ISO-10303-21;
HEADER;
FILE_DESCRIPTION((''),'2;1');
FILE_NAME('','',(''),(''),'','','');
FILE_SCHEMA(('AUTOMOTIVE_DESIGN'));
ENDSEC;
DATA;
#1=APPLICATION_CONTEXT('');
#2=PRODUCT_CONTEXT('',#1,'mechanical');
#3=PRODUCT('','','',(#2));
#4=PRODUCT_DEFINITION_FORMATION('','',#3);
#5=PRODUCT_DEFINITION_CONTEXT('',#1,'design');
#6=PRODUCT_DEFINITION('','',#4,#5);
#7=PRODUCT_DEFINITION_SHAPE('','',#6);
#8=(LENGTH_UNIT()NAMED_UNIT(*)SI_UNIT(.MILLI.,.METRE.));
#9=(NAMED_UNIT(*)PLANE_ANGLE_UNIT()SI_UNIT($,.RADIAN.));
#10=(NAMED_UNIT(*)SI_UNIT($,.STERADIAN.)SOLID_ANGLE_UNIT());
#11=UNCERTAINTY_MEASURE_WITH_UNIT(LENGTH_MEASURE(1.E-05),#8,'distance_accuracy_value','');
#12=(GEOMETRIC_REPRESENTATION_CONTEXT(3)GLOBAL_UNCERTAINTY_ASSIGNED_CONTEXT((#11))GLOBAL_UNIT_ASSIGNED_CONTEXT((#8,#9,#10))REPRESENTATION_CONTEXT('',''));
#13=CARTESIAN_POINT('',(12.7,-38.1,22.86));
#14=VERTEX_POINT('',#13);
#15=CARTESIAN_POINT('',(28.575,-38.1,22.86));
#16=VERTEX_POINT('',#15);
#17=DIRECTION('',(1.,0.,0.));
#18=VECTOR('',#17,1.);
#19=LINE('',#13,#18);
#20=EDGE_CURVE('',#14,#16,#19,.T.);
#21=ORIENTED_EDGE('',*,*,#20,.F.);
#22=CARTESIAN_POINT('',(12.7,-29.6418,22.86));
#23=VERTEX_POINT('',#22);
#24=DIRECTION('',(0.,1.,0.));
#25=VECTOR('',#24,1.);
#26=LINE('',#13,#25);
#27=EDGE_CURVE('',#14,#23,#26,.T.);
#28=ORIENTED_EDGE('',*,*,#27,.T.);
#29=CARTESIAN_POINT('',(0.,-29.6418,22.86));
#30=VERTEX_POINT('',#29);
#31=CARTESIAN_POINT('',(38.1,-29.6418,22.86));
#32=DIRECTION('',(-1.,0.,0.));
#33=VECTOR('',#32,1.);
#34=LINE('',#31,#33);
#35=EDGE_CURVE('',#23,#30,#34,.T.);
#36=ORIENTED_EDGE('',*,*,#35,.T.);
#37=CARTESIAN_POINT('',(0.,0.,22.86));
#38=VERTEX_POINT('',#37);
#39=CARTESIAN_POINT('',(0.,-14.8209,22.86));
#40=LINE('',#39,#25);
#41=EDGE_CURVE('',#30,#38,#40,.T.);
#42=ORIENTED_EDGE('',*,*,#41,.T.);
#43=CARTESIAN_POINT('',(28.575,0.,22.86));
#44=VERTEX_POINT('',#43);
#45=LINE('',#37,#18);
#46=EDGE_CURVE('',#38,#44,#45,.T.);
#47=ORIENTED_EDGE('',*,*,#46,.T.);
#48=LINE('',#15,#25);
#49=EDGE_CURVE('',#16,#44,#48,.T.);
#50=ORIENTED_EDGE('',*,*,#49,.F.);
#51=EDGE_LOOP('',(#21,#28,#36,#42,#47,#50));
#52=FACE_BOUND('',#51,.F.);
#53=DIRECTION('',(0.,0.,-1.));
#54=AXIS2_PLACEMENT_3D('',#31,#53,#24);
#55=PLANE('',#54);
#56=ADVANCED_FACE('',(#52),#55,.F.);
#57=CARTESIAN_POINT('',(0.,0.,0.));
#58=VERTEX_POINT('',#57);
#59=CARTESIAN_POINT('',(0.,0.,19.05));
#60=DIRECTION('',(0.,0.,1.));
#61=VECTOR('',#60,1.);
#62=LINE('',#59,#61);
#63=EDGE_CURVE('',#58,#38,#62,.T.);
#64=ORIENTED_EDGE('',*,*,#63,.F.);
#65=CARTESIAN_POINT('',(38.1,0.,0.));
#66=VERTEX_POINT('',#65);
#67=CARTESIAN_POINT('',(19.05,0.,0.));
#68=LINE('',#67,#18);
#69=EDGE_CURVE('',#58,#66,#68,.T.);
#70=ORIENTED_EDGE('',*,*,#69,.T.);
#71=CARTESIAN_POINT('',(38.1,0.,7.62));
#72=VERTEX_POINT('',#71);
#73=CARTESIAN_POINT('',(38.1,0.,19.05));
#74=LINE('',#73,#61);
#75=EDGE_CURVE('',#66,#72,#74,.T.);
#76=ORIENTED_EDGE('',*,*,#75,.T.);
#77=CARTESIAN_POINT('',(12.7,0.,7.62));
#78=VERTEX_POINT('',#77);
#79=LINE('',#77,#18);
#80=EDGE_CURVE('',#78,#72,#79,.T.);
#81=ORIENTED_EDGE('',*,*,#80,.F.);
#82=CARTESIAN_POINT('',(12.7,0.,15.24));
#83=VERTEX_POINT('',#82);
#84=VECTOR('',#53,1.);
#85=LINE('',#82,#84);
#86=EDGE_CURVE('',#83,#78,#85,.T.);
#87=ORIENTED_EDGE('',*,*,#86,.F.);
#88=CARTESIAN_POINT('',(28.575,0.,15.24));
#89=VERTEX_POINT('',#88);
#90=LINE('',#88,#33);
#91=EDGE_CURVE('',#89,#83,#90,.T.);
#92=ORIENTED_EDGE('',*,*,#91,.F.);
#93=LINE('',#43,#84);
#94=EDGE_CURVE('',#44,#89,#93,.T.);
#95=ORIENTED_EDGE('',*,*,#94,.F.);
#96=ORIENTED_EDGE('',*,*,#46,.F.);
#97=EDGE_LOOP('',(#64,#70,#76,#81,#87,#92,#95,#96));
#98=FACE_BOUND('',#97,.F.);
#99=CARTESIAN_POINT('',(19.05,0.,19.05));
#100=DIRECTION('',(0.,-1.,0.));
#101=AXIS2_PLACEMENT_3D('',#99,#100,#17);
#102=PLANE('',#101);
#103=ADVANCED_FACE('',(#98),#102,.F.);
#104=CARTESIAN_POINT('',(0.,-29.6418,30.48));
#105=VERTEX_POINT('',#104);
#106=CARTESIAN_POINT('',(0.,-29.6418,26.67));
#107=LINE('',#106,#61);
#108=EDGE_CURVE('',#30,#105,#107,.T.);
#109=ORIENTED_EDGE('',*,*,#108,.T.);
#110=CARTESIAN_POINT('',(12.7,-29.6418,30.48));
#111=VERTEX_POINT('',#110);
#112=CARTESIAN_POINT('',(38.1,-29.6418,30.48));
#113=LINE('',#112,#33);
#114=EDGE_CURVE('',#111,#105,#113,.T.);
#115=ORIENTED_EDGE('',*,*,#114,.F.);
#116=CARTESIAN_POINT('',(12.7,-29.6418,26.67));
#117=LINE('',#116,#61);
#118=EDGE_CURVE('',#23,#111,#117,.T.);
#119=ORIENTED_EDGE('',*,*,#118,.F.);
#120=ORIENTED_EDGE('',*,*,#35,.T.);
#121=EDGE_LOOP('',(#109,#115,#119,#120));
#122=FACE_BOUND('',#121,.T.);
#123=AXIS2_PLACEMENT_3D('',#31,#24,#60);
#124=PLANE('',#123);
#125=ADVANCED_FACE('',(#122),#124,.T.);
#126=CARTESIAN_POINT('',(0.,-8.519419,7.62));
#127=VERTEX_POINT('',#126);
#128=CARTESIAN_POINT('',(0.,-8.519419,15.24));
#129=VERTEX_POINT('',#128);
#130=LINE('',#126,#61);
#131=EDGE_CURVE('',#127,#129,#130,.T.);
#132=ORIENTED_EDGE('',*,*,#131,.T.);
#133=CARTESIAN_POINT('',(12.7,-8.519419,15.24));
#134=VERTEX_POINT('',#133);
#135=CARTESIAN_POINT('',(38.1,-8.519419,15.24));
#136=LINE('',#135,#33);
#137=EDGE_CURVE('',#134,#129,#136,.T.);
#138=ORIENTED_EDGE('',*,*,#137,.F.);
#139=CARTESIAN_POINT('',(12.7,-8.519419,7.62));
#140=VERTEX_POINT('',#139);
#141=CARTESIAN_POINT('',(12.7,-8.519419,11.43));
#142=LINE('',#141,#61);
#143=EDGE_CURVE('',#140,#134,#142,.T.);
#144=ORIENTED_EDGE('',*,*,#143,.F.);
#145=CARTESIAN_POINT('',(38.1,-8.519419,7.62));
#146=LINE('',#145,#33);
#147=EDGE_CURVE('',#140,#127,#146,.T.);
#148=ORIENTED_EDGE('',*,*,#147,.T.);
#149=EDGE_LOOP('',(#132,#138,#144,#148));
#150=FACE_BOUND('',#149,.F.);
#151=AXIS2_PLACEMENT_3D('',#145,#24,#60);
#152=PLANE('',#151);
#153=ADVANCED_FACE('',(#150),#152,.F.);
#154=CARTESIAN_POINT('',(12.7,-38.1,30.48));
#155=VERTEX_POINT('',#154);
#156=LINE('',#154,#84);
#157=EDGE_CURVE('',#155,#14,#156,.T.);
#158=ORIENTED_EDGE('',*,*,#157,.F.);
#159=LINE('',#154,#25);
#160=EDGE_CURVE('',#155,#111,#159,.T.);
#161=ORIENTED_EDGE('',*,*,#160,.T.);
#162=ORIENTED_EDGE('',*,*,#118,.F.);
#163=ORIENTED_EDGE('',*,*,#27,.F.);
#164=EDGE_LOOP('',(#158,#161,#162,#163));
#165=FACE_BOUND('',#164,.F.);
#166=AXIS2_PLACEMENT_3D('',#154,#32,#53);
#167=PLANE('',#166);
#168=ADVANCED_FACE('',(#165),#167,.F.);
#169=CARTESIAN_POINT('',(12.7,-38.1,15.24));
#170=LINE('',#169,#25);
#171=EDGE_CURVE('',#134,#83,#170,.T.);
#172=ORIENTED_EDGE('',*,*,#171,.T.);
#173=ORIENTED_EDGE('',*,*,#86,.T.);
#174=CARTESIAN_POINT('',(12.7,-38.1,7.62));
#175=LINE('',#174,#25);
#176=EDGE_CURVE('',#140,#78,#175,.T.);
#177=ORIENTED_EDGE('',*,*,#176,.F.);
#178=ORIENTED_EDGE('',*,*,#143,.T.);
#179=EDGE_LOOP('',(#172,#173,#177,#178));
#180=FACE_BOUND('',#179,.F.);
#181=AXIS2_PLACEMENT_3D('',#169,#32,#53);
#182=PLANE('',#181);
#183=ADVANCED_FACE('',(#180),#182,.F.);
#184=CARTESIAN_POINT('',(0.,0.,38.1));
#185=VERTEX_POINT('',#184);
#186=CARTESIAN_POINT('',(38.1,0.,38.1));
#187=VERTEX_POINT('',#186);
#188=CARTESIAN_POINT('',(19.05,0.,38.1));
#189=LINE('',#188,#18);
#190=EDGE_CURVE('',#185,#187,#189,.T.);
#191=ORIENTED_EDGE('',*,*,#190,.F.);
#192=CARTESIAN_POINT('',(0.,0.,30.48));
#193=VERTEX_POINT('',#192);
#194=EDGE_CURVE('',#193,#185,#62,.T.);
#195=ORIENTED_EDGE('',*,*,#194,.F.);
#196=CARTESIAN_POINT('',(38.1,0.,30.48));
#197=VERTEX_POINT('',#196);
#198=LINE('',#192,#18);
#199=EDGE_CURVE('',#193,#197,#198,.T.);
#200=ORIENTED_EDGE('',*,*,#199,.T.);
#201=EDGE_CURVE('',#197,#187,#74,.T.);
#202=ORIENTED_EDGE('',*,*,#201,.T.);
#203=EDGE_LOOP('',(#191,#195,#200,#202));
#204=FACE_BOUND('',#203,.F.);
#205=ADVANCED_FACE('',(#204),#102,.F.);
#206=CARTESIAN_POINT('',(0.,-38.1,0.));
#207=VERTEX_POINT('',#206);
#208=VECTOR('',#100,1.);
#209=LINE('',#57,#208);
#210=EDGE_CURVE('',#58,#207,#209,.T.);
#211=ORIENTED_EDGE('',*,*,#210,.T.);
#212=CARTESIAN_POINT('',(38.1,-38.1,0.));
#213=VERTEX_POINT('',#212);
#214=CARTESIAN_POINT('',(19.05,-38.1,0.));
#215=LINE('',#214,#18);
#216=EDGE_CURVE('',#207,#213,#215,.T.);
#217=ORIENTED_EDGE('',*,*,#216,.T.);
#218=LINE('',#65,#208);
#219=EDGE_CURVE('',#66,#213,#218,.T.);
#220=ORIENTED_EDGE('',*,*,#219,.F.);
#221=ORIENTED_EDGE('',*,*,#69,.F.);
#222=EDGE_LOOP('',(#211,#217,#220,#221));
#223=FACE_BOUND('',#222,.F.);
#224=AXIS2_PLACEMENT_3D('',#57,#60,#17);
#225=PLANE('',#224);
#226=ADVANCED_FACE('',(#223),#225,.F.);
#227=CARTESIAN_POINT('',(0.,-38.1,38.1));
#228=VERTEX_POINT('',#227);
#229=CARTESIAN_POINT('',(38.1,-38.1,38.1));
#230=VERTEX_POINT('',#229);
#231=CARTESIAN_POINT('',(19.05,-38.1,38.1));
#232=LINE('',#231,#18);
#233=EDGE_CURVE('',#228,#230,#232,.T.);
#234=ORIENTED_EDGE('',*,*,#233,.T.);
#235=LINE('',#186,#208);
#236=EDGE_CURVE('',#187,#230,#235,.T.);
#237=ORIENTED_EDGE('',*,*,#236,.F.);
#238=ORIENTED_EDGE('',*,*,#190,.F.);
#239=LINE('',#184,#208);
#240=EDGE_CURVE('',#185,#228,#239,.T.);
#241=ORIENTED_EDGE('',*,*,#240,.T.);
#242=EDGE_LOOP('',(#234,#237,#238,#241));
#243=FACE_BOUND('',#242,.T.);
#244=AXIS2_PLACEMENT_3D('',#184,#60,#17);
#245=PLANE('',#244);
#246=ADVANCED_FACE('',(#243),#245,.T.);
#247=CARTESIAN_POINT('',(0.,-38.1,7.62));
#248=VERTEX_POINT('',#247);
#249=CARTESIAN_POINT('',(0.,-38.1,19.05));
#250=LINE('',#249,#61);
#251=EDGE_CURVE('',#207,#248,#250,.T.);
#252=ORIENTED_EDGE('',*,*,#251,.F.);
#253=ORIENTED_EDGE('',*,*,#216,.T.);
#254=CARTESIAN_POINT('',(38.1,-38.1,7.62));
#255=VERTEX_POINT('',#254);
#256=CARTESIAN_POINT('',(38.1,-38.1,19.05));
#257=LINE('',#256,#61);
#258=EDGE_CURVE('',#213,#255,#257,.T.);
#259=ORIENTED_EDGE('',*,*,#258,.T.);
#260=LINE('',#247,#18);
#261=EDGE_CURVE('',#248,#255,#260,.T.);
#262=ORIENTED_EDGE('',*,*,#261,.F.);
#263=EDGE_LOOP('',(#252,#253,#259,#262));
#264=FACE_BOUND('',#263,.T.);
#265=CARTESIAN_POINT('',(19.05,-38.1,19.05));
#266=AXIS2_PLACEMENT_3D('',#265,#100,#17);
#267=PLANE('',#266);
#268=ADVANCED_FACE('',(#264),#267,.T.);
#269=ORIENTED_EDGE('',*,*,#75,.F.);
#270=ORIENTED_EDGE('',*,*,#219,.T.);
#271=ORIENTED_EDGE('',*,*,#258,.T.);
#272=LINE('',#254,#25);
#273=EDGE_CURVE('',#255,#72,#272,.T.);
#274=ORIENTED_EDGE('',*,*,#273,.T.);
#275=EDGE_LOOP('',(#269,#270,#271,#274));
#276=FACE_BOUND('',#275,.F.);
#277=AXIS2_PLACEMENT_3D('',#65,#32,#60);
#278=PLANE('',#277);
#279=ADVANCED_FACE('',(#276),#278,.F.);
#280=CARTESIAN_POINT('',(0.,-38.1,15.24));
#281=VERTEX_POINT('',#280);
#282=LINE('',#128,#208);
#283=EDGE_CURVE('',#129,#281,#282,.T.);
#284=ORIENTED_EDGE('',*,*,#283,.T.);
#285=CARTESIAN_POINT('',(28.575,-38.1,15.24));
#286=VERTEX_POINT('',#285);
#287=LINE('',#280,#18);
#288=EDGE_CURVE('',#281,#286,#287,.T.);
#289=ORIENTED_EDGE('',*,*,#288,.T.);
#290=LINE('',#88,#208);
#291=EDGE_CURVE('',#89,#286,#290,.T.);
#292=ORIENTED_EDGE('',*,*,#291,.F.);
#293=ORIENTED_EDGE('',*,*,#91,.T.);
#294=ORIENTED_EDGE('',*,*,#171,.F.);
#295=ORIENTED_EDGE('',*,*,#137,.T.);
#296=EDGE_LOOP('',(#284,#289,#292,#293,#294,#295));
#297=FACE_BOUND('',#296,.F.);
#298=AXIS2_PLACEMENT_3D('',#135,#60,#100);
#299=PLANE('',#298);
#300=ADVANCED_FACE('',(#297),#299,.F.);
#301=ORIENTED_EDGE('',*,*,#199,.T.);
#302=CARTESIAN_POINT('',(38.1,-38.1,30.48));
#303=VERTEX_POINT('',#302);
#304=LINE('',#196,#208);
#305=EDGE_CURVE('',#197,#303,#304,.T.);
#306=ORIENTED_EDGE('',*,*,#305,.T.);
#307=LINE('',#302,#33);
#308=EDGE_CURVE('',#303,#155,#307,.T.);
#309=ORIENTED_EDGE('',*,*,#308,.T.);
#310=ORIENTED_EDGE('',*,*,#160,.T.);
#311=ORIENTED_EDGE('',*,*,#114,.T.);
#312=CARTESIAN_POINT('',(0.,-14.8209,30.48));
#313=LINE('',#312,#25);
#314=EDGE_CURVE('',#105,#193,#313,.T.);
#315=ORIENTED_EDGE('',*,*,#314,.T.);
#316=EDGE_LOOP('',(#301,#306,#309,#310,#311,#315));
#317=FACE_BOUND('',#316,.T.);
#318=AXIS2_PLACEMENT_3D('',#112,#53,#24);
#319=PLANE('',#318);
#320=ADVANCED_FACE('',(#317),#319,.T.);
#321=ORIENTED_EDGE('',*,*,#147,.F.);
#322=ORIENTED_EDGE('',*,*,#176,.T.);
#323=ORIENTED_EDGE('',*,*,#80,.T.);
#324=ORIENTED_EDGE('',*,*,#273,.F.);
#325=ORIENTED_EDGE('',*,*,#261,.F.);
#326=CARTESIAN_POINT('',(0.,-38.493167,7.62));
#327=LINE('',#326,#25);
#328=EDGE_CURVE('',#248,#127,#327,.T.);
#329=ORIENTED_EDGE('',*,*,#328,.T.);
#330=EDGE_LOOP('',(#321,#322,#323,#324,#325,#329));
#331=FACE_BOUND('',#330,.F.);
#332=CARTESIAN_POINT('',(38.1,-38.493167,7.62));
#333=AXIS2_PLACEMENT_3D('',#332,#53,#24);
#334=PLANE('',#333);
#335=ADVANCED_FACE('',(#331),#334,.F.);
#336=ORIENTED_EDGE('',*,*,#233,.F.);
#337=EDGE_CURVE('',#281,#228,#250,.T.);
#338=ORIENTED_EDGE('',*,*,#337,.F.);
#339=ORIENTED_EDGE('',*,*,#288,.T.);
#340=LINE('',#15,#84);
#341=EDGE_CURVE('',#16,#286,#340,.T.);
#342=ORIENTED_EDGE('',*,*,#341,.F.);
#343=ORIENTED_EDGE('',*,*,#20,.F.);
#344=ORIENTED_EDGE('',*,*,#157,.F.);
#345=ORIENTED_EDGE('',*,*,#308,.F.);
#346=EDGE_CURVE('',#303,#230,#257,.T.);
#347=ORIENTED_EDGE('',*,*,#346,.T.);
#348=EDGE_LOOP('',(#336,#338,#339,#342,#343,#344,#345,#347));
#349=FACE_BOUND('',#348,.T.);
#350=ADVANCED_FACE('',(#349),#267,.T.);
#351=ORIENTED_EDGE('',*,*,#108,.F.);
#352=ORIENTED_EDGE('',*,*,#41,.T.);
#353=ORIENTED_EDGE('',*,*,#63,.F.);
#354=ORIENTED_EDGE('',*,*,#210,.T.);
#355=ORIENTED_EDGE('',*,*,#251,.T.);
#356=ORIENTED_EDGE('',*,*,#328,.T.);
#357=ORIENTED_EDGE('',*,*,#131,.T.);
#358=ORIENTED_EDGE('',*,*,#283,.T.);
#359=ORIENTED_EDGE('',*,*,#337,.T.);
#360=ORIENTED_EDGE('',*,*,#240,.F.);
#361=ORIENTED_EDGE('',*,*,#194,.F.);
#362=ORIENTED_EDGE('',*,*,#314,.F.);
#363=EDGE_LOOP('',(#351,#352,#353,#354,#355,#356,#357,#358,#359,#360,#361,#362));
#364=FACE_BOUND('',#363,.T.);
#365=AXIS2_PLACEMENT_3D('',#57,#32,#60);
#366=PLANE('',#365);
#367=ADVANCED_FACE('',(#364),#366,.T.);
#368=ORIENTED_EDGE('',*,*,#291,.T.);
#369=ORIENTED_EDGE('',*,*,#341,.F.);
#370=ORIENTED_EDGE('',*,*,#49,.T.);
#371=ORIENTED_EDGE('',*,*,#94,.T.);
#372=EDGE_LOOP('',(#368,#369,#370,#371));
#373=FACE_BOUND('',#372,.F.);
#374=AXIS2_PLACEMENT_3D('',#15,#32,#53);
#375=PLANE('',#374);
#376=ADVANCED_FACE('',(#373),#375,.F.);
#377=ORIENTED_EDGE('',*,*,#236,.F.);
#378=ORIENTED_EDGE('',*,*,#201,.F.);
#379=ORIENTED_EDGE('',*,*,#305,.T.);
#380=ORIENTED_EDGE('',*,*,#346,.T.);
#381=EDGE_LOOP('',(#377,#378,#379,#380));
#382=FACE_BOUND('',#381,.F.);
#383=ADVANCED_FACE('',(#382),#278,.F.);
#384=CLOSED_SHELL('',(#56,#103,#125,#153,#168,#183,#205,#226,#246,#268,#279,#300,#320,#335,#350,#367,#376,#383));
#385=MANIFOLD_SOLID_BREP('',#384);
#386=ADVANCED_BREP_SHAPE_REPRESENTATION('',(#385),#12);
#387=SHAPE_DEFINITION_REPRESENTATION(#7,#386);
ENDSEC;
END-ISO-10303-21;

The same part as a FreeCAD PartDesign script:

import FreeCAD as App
import Part
import Sketcher

V = App.Vector
Q = App.Units.Quantity

doc = App.newDocument("Part")
body = doc.addObject("PartDesign::Body", "Body")

sketch1 = body.newObject("Sketcher::SketchObject", "Sketch")
sketch1.AttachmentSupport = (doc.getObject("XZ_Plane"), [""])
sketch1.MapMode = "FlatFace"
sketch1.addGeometry(Part.LineSegment(V(0, 38.1, 0), V(0, 0, 0)), False)
sketch1.addGeometry(Part.LineSegment(V(0, 0, 0), V(38.1, 0, 0)), False)
sketch1.addGeometry(Part.LineSegment(V(38.1, 0, 0), V(38.1, 38.1, 0)), False)
sketch1.addGeometry(Part.LineSegment(V(38.1, 38.1, 0), V(0, 38.1, 0)), False)
sketch1.addConstraint(Sketcher.Constraint("Coincident", 0, 2, 1, 1))
sketch1.addConstraint(Sketcher.Constraint("Coincident", 1, 2, 2, 1))
sketch1.addConstraint(Sketcher.Constraint("Coincident", 2, 2, 3, 1))
sketch1.addConstraint(Sketcher.Constraint("Coincident", 3, 2, 0, 1))
sketch1.addConstraint(Sketcher.Constraint("Vertical", 0))
sketch1.addConstraint(Sketcher.Constraint("Horizontal", 1))
sketch1.addConstraint(Sketcher.Constraint("Vertical", 2))
sketch1.addConstraint(Sketcher.Constraint("Horizontal", 3))
sketch1.addConstraint(Sketcher.Constraint("Coincident", 0, 2, -1, 1))
sketch1.addConstraint(Sketcher.Constraint("Equal", 3, 0))
sketch1.addConstraint(Sketcher.Constraint("DistanceX", 1, 1, 1, 2, Q("1.5 in")))
pad1 = body.newObject("PartDesign::Pad", "Pad")
pad1.Profile = sketch1
pad1.Length = Q("1.5 in")

sketch2 = body.newObject("Sketcher::SketchObject", "Sketch001")
sketch2.AttachmentSupport = (doc.getObject("YZ_Plane"), [""])
sketch2.MapMode = "FlatFace"
sketch2.AttachmentOffset = App.Placement(V(0, 0, 1.5 * 25.4), App.Rotation())
sketch2.addGeometry(Part.LineSegment(V(-29.6418, 30.48, 0), V(-29.6418, 22.86, 0)), False)
sketch2.addGeometry(Part.LineSegment(V(-29.6418, 22.86, 0), V(0, 22.86, 0)), False)
sketch2.addGeometry(Part.LineSegment(V(0, 22.86, 0), V(0, 30.48, 0)), False)
sketch2.addGeometry(Part.LineSegment(V(0, 30.48, 0), V(-29.6418, 30.48, 0)), False)
sketch2.addGeometry(Part.LineSegment(V(-8.519419, 15.24, 0), V(-38.160126, 15.24, 0)), False)
sketch2.addGeometry(Part.LineSegment(V(-38.160126, 15.24, 0), V(-38.493167, 7.62, 0)), False)
sketch2.addGeometry(Part.LineSegment(V(-38.493167, 7.62, 0), V(-8.519419, 7.62, 0)), False)
sketch2.addGeometry(Part.LineSegment(V(-8.519419, 7.62, 0), V(-8.519419, 15.24, 0)), False)
sketch2.addConstraint(Sketcher.Constraint("Coincident", 0, 2, 1, 1))
sketch2.addConstraint(Sketcher.Constraint("Coincident", 1, 2, 2, 1))
sketch2.addConstraint(Sketcher.Constraint("Coincident", 2, 2, 3, 1))
sketch2.addConstraint(Sketcher.Constraint("Coincident", 3, 2, 0, 1))
sketch2.addConstraint(Sketcher.Constraint("Coincident", 4, 2, 5, 1))
sketch2.addConstraint(Sketcher.Constraint("Coincident", 5, 2, 6, 1))
sketch2.addConstraint(Sketcher.Constraint("Coincident", 6, 2, 7, 1))
sketch2.addConstraint(Sketcher.Constraint("Coincident", 7, 2, 4, 1))
sketch2.addConstraint(Sketcher.Constraint("Vertical", 0))
sketch2.addConstraint(Sketcher.Constraint("Horizontal", 1))
sketch2.addConstraint(Sketcher.Constraint("Vertical", 2))
sketch2.addConstraint(Sketcher.Constraint("Horizontal", 3))
sketch2.addConstraint(Sketcher.Constraint("Horizontal", 4))
sketch2.addConstraint(Sketcher.Constraint("Horizontal", 6))
sketch2.addConstraint(Sketcher.Constraint("Vertical", 7))
sketch2.addConstraint(Sketcher.Constraint("PointOnObject", 1, 2, -2))
sketch2.addConstraint(Sketcher.Constraint("Equal", 2, 7))
sketch2.addConstraint(Sketcher.Constraint("DistanceY", 0, 2, 0, 1, Q("0.3 in")))
sketch2.addConstraint(Sketcher.Constraint("DistanceY", -1, 1, 0, 2, Q("0.9 in")))
sketch2.addConstraint(Sketcher.Constraint("DistanceY", -1, 1, 4, 2, Q("0.6 in")))
sketch2.addConstraint(Sketcher.Constraint("DistanceX", 1, 1, 1, 2, Q("1.167 in")))
sketch2.addConstraint(Sketcher.Constraint("DistanceX", 6, 1, 6, 2, Q("29.973748 mm")))
sketch2.addConstraint(Sketcher.Constraint("DistanceX", 4, 2, 4, 1, Q("29.640707 mm")))
sketch2.addConstraint(Sketcher.Constraint("DistanceX", 6, 2, -1, 1, Q("8.519419 mm")))
pocket1 = body.newObject("PartDesign::Pocket", "Pocket")
pocket1.Profile = sketch2
pocket1.Length = Q("1.5 in")

sketch3 = body.newObject("Sketcher::SketchObject", "Sketch002")
sketch3.AttachmentSupport = (doc.getObject("XZ_Plane"), [""])
sketch3.MapMode = "FlatFace"
sketch3.AttachmentOffset = App.Placement(V(0, 0, 1.5 * 25.4), App.Rotation())
sketch3.addGeometry(Part.LineSegment(V(38.1, 7.62, 0), V(38.1, 30.48, 0)), False)
sketch3.addGeometry(Part.LineSegment(V(38.1, 30.48, 0), V(12.7, 30.48, 0)), False)
sketch3.addGeometry(Part.LineSegment(V(12.7, 30.48, 0), V(12.7, 22.86, 0)), False)
sketch3.addGeometry(Part.LineSegment(V(12.7, 22.86, 0), V(28.575, 22.86, 0)), False)
sketch3.addGeometry(Part.LineSegment(V(28.575, 22.86, 0), V(28.575, 15.24, 0)), False)
sketch3.addGeometry(Part.LineSegment(V(28.575, 15.24, 0), V(12.7, 15.24, 0)), False)
sketch3.addGeometry(Part.LineSegment(V(12.7, 15.24, 0), V(12.7, 7.62, 0)), False)
sketch3.addGeometry(Part.LineSegment(V(12.7, 7.62, 0), V(38.1, 7.62, 0)), False)
sketch3.addConstraint(Sketcher.Constraint("Coincident", 0, 2, 1, 1))
sketch3.addConstraint(Sketcher.Constraint("Coincident", 1, 2, 2, 1))
sketch3.addConstraint(Sketcher.Constraint("Coincident", 2, 2, 3, 1))
sketch3.addConstraint(Sketcher.Constraint("Coincident", 3, 2, 4, 1))
sketch3.addConstraint(Sketcher.Constraint("Coincident", 4, 2, 5, 1))
sketch3.addConstraint(Sketcher.Constraint("Coincident", 5, 2, 6, 1))
sketch3.addConstraint(Sketcher.Constraint("Coincident", 6, 2, 7, 1))
sketch3.addConstraint(Sketcher.Constraint("Coincident", 7, 2, 0, 1))
sketch3.addConstraint(Sketcher.Constraint("Vertical", 0))
sketch3.addConstraint(Sketcher.Constraint("Horizontal", 1))
sketch3.addConstraint(Sketcher.Constraint("Vertical", 2))
sketch3.addConstraint(Sketcher.Constraint("Horizontal", 3))
sketch3.addConstraint(Sketcher.Constraint("Vertical", 4))
sketch3.addConstraint(Sketcher.Constraint("Horizontal", 5))
sketch3.addConstraint(Sketcher.Constraint("Vertical", 6))
sketch3.addConstraint(Sketcher.Constraint("Horizontal", 7))
sketch3.addConstraint(Sketcher.Constraint("Vertical", 2, 2, 5, 2))
sketch3.addConstraint(Sketcher.Constraint("Equal", 2, 4))
sketch3.addConstraint(Sketcher.Constraint("Equal", 4, 6))
sketch3.addConstraint(Sketcher.Constraint("DistanceX", 1, 2, 1, 1, Q("1 in")))
sketch3.addConstraint(Sketcher.Constraint("DistanceY", 0, 1, 0, 2, Q("0.9 in")))
sketch3.addConstraint(Sketcher.Constraint("DistanceX", -1, 1, 0, 2, Q("1.5 in")))
sketch3.addConstraint(Sketcher.Constraint("DistanceY", -1, 1, 0, 2, Q("1.2 in")))
sketch3.addConstraint(Sketcher.Constraint("DistanceX", 3, 1, 3, 2, Q("0.625 in")))
pocket2 = body.newObject("PartDesign::Pocket", "Pocket001")
pocket2.Profile = sketch3
pocket2.Length = Q("1.5 in")

doc.recompute()
